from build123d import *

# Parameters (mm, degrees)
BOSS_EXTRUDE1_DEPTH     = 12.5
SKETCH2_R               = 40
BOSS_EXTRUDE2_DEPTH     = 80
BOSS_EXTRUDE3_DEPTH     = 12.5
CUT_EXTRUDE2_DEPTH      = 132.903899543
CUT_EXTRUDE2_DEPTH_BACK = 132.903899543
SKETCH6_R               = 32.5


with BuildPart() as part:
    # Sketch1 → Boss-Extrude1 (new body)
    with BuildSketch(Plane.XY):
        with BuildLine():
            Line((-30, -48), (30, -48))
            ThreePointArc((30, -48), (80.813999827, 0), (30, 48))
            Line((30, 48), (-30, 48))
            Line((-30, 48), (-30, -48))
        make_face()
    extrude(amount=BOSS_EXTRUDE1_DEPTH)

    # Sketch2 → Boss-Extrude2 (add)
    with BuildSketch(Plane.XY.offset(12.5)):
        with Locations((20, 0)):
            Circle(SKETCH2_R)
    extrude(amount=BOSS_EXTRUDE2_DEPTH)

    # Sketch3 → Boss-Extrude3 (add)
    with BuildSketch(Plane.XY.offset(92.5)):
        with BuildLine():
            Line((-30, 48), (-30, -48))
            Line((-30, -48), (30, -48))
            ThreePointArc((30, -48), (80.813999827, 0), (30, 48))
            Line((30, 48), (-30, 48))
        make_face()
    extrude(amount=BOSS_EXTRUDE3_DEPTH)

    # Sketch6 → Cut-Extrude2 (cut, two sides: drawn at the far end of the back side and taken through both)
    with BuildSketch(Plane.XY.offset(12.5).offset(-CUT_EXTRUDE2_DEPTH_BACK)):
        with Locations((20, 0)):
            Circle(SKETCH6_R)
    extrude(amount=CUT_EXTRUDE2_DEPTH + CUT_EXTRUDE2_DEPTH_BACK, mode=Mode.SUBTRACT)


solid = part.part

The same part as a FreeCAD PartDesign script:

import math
import FreeCAD as App
import Part
import Sketcher
from FreeCAD import Vector
Q = App.Units.Quantity

doc = App.newDocument("Part")
params = doc.addObject("Spreadsheet::Sheet", "Params")
for row, (alias, value) in enumerate([
    ("sketch1_width", "60 mm"),
    ("sketch1_height", "96 mm"),
    ("pad1_length", "12.5 mm"),
    ("sketch2_diameter", "80 mm"),
    ("pad2_length", "80 mm"),
    ("sketch3_width", "60 mm"),
    ("sketch3_height", "96 mm"),
    ("pad3_length", "12.5 mm"),
    ("sketch4_diameter", "65 mm"),
], start=1):
    params.set(f"A{row}", alias)
    params.set(f"B{row}", "=" + value)
    params.setAlias(f"B{row}", alias)

body = doc.addObject("PartDesign::Body", "Body")

# Sketch on XY plane
sketch1 = body.newObject("Sketcher::SketchObject", "Sketch")
sketch1.AttachmentSupport = (doc.getObject("XY_Plane"), [""])
sketch1.MapMode = "FlatFace"
sketch1.addGeometry([
    Part.LineSegment(Vector(-30, -48, 0), Vector(30, -48, 0)),
    Part.ArcOfCircle(Part.Circle(Vector(32.736082, 0, 0), Vector(0, 0, 1), 48.077917), math.radians(-93.262427), math.radians(93.262427)),
    Part.LineSegment(Vector(30, 48, 0), Vector(-30, 48, 0)),
    Part.LineSegment(Vector(-30, 48, 0), Vector(-30, -48, 0)),
], False)
sketch1.addConstraint([
    Sketcher.Constraint("Coincident", 0, 2, 1, 1),
    Sketcher.Constraint("Coincident", 1, 2, 2, 1),
    Sketcher.Constraint("Coincident", 2, 2, 3, 1),
    Sketcher.Constraint("Coincident", 3, 2, 0, 1),
    Sketcher.Constraint("Horizontal", 0),
    Sketcher.Constraint("Horizontal", 2),
    Sketcher.Constraint("Vertical", 3),
    Sketcher.Constraint("Symmetric", 0, 2, 2, 2, -1, 1),
    Sketcher.Constraint("PointOnObject", 1, 3, -1),
    Sketcher.Constraint("DistanceX", 0, 1, 0, 2, Q("60 mm")),
    Sketcher.Constraint("DistanceY", 3, 2, 3, 1, Q("96 mm")),
    Sketcher.Constraint("Radius", 1, Q("48.077917 mm")),
])
sketch1.setExpression("Constraints[9]", "Params.sketch1_width")
sketch1.setExpression("Constraints[10]", "Params.sketch1_height")
pad1 = body.newObject("PartDesign::Pad", "Pad")
pad1.Profile = sketch1
pad1.setExpression("Length", "Params.pad1_length")

# Sketch on XY plane
sketch2 = body.newObject("Sketcher::SketchObject", "Sketch001")
sketch2.AttachmentSupport = (doc.getObject("XY_Plane"), [""])
sketch2.MapMode = "FlatFace"
sketch2.AttachmentOffset = App.Placement(Vector(0, 0, 12.5), App.Rotation())
sketch2.addGeometry(Part.Circle(Vector(20, 0, 0), Vector(0, 0, 1), 40), False)
sketch2.addConstraint([
    Sketcher.Constraint("PointOnObject", 0, 3, -1),
    Sketcher.Constraint("Diameter", 0, Q("80 mm")),
    Sketcher.Constraint("DistanceX", -1, 1, 0, 3, Q("20 mm")),
])
sketch2.setExpression("Constraints[1]", "Params.sketch2_diameter")
pad2 = body.newObject("PartDesign::Pad", "Pad001")
pad2.Profile = sketch2
pad2.setExpression("Length", "Params.pad2_length")

# Sketch on XY plane
sketch3 = body.newObject("Sketcher::SketchObject", "Sketch002")
sketch3.AttachmentSupport = (doc.getObject("XY_Plane"), [""])
sketch3.MapMode = "FlatFace"
sketch3.AttachmentOffset = App.Placement(Vector(0, 0, 92.5), App.Rotation())
sketch3.addGeometry([
    Part.LineSegment(Vector(-30, 48, 0), Vector(-30, -48, 0)),
    Part.LineSegment(Vector(-30, -48, 0), Vector(30, -48, 0)),
    Part.ArcOfCircle(Part.Circle(Vector(32.736082, 0, 0), Vector(0, 0, 1), 48.077917), math.radians(-93.262427), math.radians(93.262427)),
    Part.LineSegment(Vector(30, 48, 0), Vector(-30, 48, 0)),
], False)
sketch3.addConstraint([
    Sketcher.Constraint("Coincident", 0, 2, 1, 1),
    Sketcher.Constraint("Coincident", 1, 2, 2, 1),
    Sketcher.Constraint("Coincident", 2, 2, 3, 1),
    Sketcher.Constraint("Coincident", 3, 2, 0, 1),
    Sketcher.Constraint("Vertical", 0),
    Sketcher.Constraint("Horizontal", 1),
    Sketcher.Constraint("Horizontal", 3),
    Sketcher.Constraint("Symmetric", 0, 2, 2, 2, -1, 1),
    Sketcher.Constraint("PointOnObject", 2, 3, -1),
    Sketcher.Constraint("DistanceX", 1, 1, 1, 2, Q("60 mm")),
    Sketcher.Constraint("DistanceY", 0, 2, 0, 1, Q("96 mm")),
    Sketcher.Constraint("Radius", 2, Q("48.077917 mm")),
])
sketch3.setExpression("Constraints[9]", "Params.sketch3_width")
sketch3.setExpression("Constraints[10]", "Params.sketch3_height")
pad3 = body.newObject("PartDesign::Pad", "Pad002")
pad3.Profile = sketch3
pad3.setExpression("Length", "Params.pad3_length")

# Sketch on XY plane
sketch4 = body.newObject("Sketcher::SketchObject", "Sketch003")
sketch4.AttachmentSupport = (doc.getObject("XY_Plane"), [""])
sketch4.MapMode = "FlatFace"
sketch4.AttachmentOffset = App.Placement(Vector(0, 0, 12.5), App.Rotation())
sketch4.addGeometry(Part.Circle(Vector(20, 0, 0), Vector(0, 0, 1), 32.5), False)
sketch4.addConstraint([
    Sketcher.Constraint("PointOnObject", 0, 3, -1),
    Sketcher.Constraint("Diameter", 0, Q("65 mm")),
    Sketcher.Constraint("DistanceX", -1, 1, 0, 3, Q("20 mm")),
])
sketch4.setExpression("Constraints[1]", "Params.sketch4_diameter")
pocket1 = body.newObject("PartDesign::Pocket", "Pocket")
pocket1.Profile = sketch4
pocket1.Type = "ThroughAll"
pocket1.Midplane = True

doc.recompute()
